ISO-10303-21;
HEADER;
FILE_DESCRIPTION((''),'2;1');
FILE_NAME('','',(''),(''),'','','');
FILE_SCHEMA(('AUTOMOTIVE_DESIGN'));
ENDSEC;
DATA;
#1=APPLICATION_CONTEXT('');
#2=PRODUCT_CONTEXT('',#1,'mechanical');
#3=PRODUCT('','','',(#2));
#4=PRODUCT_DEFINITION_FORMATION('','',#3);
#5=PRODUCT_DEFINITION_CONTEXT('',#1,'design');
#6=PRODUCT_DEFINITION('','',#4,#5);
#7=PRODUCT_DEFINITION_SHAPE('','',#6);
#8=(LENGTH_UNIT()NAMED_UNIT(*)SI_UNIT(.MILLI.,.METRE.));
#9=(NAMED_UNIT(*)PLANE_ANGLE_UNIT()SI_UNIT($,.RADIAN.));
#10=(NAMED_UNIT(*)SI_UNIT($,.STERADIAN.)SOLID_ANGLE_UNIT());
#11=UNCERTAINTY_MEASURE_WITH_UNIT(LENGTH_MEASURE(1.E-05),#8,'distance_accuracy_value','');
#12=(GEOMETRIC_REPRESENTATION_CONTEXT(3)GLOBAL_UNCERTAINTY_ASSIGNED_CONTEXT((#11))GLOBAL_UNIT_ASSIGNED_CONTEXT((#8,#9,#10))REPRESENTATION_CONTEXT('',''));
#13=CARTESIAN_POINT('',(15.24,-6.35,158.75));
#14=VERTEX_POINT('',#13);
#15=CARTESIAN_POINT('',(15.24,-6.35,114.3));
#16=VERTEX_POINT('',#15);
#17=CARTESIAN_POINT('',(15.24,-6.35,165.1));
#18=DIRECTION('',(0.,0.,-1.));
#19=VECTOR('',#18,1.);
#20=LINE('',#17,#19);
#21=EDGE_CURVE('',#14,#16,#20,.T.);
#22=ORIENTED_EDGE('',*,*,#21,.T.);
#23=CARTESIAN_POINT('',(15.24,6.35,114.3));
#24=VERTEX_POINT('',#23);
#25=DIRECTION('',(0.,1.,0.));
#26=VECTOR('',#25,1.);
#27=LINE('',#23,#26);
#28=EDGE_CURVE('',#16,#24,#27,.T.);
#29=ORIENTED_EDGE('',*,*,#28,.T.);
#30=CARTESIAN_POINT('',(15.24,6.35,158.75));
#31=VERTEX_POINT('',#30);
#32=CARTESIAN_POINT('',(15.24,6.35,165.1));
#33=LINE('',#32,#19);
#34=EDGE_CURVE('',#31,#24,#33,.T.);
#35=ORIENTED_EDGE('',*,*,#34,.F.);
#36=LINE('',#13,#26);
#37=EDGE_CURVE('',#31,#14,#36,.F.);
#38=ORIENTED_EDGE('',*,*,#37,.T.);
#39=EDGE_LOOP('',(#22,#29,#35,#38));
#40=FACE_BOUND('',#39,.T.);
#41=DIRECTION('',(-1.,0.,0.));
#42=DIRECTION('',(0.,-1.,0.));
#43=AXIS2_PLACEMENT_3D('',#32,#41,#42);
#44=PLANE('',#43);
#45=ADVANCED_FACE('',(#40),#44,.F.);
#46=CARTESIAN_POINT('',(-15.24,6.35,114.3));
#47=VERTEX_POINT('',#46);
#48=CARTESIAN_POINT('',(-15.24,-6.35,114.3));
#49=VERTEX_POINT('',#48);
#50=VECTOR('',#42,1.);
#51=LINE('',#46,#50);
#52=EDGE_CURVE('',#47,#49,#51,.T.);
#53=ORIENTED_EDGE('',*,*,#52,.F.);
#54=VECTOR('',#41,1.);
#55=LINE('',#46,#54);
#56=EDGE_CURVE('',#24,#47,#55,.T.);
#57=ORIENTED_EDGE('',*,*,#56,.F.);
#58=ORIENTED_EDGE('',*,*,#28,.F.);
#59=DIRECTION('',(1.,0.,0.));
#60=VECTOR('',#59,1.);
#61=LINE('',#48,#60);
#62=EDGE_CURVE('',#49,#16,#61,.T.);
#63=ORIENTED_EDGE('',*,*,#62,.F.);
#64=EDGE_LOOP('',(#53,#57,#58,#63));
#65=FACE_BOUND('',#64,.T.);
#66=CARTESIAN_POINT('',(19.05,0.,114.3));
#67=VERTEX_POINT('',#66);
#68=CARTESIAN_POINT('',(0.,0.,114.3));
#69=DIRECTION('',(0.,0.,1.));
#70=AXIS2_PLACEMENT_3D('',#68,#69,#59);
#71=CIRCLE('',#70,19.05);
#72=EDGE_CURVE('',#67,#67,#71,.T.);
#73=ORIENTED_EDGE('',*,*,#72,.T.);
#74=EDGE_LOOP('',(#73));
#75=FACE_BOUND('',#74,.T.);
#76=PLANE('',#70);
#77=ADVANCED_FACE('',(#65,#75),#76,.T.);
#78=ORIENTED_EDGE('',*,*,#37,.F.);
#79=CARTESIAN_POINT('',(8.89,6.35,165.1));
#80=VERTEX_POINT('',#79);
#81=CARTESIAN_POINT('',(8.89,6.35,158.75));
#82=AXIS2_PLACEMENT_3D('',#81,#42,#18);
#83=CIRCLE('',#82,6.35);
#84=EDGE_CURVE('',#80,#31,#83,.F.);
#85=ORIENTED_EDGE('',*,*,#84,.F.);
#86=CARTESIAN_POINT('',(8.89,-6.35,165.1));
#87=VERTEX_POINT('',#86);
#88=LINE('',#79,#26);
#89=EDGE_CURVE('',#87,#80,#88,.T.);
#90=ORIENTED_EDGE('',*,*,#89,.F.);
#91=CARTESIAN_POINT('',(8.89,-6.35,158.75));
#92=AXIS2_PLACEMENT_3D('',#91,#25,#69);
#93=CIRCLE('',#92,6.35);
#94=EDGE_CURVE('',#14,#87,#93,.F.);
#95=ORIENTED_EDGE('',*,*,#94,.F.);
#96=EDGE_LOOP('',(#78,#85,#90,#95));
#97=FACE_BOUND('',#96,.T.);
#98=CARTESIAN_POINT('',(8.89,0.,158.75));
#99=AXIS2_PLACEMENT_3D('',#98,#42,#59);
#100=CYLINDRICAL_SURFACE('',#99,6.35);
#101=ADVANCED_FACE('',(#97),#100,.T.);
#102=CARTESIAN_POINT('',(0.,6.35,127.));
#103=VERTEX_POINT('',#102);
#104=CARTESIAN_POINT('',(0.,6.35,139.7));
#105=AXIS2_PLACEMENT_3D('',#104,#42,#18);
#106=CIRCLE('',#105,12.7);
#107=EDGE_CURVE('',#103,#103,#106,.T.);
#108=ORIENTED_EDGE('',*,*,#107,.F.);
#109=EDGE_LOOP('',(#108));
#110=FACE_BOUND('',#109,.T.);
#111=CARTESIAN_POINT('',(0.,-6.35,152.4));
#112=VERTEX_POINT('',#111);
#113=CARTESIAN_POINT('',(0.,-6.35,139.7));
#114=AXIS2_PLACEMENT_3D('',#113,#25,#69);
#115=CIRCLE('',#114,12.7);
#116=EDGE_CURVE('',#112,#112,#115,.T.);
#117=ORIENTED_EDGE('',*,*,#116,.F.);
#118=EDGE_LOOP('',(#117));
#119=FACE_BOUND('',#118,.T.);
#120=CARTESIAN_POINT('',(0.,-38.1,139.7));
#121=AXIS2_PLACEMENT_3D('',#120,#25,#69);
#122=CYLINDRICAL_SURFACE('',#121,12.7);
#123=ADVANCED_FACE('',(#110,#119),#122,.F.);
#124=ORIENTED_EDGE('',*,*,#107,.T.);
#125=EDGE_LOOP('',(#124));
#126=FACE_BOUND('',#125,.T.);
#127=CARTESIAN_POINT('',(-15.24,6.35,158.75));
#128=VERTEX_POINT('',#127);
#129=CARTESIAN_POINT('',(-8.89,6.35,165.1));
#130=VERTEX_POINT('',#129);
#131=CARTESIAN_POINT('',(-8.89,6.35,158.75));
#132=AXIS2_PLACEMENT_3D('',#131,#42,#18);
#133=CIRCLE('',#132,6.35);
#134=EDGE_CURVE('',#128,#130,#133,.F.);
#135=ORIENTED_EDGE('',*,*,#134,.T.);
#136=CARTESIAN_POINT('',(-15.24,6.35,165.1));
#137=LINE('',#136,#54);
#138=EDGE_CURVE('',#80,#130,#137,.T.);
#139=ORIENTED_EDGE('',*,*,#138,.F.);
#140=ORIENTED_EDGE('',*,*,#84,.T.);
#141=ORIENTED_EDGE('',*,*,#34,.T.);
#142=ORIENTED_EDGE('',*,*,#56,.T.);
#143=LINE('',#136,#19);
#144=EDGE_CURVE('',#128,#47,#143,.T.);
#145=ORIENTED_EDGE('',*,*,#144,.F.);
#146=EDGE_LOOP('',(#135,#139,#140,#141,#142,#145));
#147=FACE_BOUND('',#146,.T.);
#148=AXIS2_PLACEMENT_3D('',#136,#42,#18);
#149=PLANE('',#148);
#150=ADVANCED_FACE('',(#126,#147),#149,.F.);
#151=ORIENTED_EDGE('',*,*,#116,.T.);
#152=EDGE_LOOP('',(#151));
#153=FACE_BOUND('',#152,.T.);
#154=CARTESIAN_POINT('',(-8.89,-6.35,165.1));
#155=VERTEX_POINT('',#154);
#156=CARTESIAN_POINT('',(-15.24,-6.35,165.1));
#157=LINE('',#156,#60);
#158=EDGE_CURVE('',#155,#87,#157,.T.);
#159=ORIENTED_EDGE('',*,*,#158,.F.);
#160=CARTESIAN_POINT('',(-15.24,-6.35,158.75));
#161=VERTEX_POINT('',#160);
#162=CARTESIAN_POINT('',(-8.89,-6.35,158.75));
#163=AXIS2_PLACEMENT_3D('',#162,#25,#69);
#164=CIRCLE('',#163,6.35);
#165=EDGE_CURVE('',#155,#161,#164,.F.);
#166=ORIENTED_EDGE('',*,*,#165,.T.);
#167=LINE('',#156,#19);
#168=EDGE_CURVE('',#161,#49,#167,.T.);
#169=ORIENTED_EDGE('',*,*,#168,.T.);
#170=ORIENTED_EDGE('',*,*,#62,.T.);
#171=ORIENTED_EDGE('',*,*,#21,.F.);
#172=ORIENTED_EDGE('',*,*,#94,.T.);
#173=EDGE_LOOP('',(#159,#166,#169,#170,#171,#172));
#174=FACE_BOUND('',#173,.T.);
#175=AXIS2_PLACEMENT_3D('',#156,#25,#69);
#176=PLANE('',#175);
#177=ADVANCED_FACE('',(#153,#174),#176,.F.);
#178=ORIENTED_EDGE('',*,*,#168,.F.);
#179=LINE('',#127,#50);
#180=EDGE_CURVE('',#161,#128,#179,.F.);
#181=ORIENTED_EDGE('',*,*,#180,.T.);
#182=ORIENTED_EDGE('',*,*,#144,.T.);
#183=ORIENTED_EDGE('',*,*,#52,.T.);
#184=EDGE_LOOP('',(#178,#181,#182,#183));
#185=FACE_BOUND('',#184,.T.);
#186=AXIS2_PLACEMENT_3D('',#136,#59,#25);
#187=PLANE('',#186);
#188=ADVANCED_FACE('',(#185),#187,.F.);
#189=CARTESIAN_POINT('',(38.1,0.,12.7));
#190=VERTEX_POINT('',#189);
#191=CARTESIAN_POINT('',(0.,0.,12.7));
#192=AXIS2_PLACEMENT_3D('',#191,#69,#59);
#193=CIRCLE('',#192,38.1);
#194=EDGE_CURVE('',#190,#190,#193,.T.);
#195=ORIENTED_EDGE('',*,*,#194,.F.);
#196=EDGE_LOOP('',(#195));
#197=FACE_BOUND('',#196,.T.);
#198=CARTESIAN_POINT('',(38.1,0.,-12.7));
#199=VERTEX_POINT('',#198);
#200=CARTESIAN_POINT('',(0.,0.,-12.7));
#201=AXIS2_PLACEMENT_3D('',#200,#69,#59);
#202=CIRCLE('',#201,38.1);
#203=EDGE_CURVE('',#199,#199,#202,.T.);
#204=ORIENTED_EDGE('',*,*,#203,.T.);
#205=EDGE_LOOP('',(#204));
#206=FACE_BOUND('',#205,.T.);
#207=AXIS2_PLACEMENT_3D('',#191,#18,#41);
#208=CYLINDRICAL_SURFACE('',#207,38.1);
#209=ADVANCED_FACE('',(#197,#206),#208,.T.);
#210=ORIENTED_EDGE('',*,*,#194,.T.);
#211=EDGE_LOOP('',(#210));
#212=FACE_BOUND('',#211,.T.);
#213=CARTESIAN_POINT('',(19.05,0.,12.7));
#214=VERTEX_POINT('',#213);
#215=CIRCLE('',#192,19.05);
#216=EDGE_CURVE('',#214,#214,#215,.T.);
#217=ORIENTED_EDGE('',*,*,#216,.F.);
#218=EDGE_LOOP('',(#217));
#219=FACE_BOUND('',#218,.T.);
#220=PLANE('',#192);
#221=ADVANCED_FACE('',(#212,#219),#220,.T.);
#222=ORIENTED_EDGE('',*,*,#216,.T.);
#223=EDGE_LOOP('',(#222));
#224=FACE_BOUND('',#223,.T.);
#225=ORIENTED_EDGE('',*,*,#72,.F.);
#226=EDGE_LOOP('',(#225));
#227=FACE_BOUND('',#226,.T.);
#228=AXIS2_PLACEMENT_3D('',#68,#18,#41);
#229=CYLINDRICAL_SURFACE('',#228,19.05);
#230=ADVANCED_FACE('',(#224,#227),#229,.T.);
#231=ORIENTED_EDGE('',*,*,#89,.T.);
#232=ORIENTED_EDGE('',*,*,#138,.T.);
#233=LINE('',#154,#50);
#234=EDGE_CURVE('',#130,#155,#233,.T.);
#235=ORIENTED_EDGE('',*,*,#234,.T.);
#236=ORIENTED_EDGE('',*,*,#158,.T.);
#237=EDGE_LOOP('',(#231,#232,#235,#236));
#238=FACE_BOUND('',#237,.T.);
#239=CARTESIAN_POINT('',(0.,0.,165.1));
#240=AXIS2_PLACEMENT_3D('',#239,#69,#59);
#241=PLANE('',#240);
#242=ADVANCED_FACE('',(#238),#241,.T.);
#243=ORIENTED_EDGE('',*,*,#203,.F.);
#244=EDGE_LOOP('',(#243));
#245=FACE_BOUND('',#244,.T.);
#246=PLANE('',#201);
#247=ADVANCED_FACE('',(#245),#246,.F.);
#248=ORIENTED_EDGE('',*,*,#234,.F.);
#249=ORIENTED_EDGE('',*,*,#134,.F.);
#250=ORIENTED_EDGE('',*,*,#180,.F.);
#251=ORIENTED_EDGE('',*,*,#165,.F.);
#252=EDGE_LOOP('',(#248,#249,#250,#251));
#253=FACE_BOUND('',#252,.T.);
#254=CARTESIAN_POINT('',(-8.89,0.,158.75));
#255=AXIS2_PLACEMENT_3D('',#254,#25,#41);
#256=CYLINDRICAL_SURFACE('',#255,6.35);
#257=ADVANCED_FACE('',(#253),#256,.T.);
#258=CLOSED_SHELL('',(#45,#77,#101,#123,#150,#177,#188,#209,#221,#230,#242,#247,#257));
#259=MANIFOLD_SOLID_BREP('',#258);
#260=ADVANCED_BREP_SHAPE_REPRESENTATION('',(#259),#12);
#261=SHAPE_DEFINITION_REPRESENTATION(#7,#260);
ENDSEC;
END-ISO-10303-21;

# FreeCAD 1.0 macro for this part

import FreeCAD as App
import Part
import Sketcher
Q = App.Units.Quantity


def edges_at(feature, points):
    """Names of the edges that pass closest to the given points."""
    edges = feature.Shape.Edges
    near = lambda p: min(range(len(edges)), key=lambda i: edges[i].distToShape(Part.Vertex(*p))[0])
    return sorted({f"Edge{near(p) + 1}" for p in points})


def add_polygon(sketch, points):
    """Adds a closed chain of lines whose ends are joined by coincident constraints."""
    first, n = sketch.GeometryCount, len(points)
    for a, b in zip(points, points[1:] + points[:1]):
        sketch.addGeometry(Part.LineSegment(App.Vector(*a, 0), App.Vector(*b, 0)), False)
    for i in range(n):
        sketch.addConstraint(Sketcher.Constraint("Coincident", first + i, 2, first + (i + 1) % n, 1))

doc = App.newDocument("Part")
body = doc.addObject("PartDesign::Body", "Body")

sketch1 = body.newObject("Sketcher::SketchObject", "Sketch")
sketch1.AttachmentSupport = (doc.getObject("XY_Plane"), [""])
sketch1.MapMode = "FlatFace"
sketch1.addGeometry(Part.Circle(App.Vector(0, 0, 0), App.Vector(0, 0, 1), 38), False)
sketch1.addConstraint([
    Sketcher.Constraint("Coincident", 0, 3, -1, 1),
    Sketcher.Constraint("Diameter", 0, Q("3 in")),
])
pad1 = body.newObject("PartDesign::Pad", "Pad")
pad1.Profile = sketch1
pad1.Length = Q("1 in")
pad1.Midplane = True

sketch2 = body.newObject("Sketcher::SketchObject", "Sketch001")
sketch2.AttachmentSupport = (doc.getObject("XY_Plane"), [""])
sketch2.MapMode = "FlatFace"
sketch2.AttachmentOffset = App.Placement(App.Vector(0, 0, 0.5 * 25.4), App.Rotation())
sketch2.addGeometry(Part.Circle(App.Vector(0, 0, 0), App.Vector(0, 0, 1), 19), False)
sketch2.addConstraint([
    Sketcher.Constraint("Coincident", 0, 3, -1, 1),
    Sketcher.Constraint("Diameter", 0, Q("1.5 in")),
])
pad2 = body.newObject("PartDesign::Pad", "Pad001")
pad2.Profile = sketch2
pad2.Length = Q("4 in")

sketch3 = body.newObject("Sketcher::SketchObject", "Sketch002")
sketch3.AttachmentSupport = (doc.getObject("XY_Plane"), [""])
sketch3.MapMode = "FlatFace"
sketch3.AttachmentOffset = App.Placement(App.Vector(0, 0, 4.5 * 25.4), App.Rotation())
add_polygon(sketch3, [(-15, 6), (-15, -6), (15, -6), (15, 6)])
sketch3.addConstraint([
    Sketcher.Constraint("Vertical", 0),
    Sketcher.Constraint("Horizontal", 1),
    Sketcher.Constraint("Vertical", 2),
    Sketcher.Constraint("Horizontal", 3),
    Sketcher.Constraint("Symmetric", 0, 2, 2, 2, -1, 1),
    Sketcher.Constraint("DistanceX", 1, 1, 1, 2, Q("1.2 in")),
    Sketcher.Constraint("DistanceY", 0, 2, 0, 1, Q("0.5 in")),
])
pad3 = body.newObject("PartDesign::Pad", "Pad002")
pad3.Profile = sketch3
pad3.Length = Q("2 in")
doc.recompute()

fillet = body.newObject("PartDesign::Fillet", "Fillet")
fillet.Base = (pad3, edges_at(pad3, [(15.24, 0, 165.1), (-15.24, 0, 165.1)]))
fillet.Radius = Q("0.25 in")

sketch4 = body.newObject("Sketcher::SketchObject", "Sketch003")
sketch4.AttachmentSupport = (doc.getObject("XZ_Plane"), [""])
sketch4.MapMode = "FlatFace"
sketch4.AttachmentOffset = App.Placement(App.Vector(0, 0, -0.25 * 25.4), App.Rotation())
sketch4.addGeometry(Part.Circle(App.Vector(0, 140, 0), App.Vector(0, 0, 1), 13), False)
sketch4.addConstraint([
    Sketcher.Constraint("PointOnObject", 0, 3, -2),
    Sketcher.Constraint("Diameter", 0, Q("1 in")),
    Sketcher.Constraint("DistanceY", -1, 1, 0, 3, Q("5.5 in")),
])
pocket1 = body.newObject("PartDesign::Pocket", "Pocket")
pocket1.Profile = sketch4
pocket1.Type = "ThroughAll"
pocket1.Midplane = True

doc.recompute()
